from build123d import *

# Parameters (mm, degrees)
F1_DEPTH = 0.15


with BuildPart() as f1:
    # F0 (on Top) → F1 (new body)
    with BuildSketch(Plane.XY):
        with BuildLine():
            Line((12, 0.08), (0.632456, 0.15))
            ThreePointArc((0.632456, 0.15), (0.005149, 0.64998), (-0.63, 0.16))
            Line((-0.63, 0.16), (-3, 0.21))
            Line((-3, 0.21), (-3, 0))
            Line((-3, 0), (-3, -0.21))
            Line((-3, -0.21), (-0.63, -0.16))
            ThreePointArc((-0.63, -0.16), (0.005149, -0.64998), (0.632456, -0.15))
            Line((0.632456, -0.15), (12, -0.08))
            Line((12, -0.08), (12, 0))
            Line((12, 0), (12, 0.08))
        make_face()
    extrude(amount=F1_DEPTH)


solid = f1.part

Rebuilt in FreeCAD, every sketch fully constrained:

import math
import FreeCAD as App
import Part
import Sketcher
from FreeCAD import Vector

doc = App.newDocument("Part")
body = doc.addObject("PartDesign::Body", "Body")

sketch1 = doc.addObject("Sketcher::SketchObject", "Sketch")
body.addObject(sketch1)
sketch1.AttachmentSupport = (doc.XY_Plane, [""])
sketch1.MapMode = "FlatFace"
sketch1.addGeometry([
    Part.LineSegment(Vector(12, 0.08, 0), Vector(0.632456, 0.15, 0)),
    Part.ArcOfCircle(Part.Circle(Vector(0, 0, 0), Vector(0, 0, 1), 0.65), math.radians(13.34234), math.radians(165.749991)),
    Part.LineSegment(Vector(-0.63, 0.16, 0), Vector(-3, 0.21, 0)),
    Part.LineSegment(Vector(-3, 0.21, 0), Vector(-3, -0.21, 0)),
    Part.LineSegment(Vector(-3, -0.21, 0), Vector(-0.63, -0.16, 0)),
    Part.ArcOfCircle(Part.Circle(Vector(0, 0, 0), Vector(0, 0, 1), 0.65), math.radians(-165.749991), math.radians(-13.34234)),
    Part.LineSegment(Vector(0.632456, -0.15, 0), Vector(12, -0.08, 0)),
    Part.LineSegment(Vector(12, -0.08, 0), Vector(12, 0.08, 0)),
], False)
sketch1.addConstraint([
    Sketcher.Constraint("Coincident", 0, 2, 1, 1),
    Sketcher.Constraint("Coincident", 1, 2, 2, 1),
    Sketcher.Constraint("Coincident", 2, 2, 3, 1),
    Sketcher.Constraint("Coincident", 3, 2, 4, 1),
    Sketcher.Constraint("Coincident", 4, 2, 5, 1),
    Sketcher.Constraint("Coincident", 5, 2, 6, 1),
    Sketcher.Constraint("Coincident", 6, 2, 7, 1),
    Sketcher.Constraint("Coincident", 7, 2, 0, 1),
    Sketcher.Constraint("Vertical", 3),
    Sketcher.Constraint("Vertical", 7),
    Sketcher.Constraint("Coincident", 1, 3, -1, 1),
    Sketcher.Constraint("Coincident", 5, 3, -1, 1),
    Sketcher.Constraint("Equal", 1, 5),
    Sketcher.Constraint("Vertical", 1, 2, 4, 2),
    Sketcher.Constraint("Vertical", 0, 2, 5, 2),
    Sketcher.Constraint("Equal", 2, 4),
    Sketcher.Constraint("Equal", 0, 6),
    Sketcher.Constraint("Radius", 1, 0.65),
    Sketcher.Constraint("DistanceX", 2, 2, -1, 1, 3.0),
    Sketcher.Constraint("DistanceX", -1, 1, 6, 2, 12.0),
    Sketcher.Constraint("DistanceY", 3, 2, 3, 1, 0.42),
    Sketcher.Constraint("DistanceY", 7, 1, 7, 2, 0.16),
    Sketcher.Constraint("DistanceY", 5, 2, 0, 2, 0.3),
    Sketcher.Constraint("DistanceX", 1, 2, -1, 1, 0.63),
])
pad1 = doc.addObject("PartDesign::Pad", "Pad")
body.addObject(pad1)
pad1.Profile = sketch1
pad1.Length = 0.15

doc.recompute()
